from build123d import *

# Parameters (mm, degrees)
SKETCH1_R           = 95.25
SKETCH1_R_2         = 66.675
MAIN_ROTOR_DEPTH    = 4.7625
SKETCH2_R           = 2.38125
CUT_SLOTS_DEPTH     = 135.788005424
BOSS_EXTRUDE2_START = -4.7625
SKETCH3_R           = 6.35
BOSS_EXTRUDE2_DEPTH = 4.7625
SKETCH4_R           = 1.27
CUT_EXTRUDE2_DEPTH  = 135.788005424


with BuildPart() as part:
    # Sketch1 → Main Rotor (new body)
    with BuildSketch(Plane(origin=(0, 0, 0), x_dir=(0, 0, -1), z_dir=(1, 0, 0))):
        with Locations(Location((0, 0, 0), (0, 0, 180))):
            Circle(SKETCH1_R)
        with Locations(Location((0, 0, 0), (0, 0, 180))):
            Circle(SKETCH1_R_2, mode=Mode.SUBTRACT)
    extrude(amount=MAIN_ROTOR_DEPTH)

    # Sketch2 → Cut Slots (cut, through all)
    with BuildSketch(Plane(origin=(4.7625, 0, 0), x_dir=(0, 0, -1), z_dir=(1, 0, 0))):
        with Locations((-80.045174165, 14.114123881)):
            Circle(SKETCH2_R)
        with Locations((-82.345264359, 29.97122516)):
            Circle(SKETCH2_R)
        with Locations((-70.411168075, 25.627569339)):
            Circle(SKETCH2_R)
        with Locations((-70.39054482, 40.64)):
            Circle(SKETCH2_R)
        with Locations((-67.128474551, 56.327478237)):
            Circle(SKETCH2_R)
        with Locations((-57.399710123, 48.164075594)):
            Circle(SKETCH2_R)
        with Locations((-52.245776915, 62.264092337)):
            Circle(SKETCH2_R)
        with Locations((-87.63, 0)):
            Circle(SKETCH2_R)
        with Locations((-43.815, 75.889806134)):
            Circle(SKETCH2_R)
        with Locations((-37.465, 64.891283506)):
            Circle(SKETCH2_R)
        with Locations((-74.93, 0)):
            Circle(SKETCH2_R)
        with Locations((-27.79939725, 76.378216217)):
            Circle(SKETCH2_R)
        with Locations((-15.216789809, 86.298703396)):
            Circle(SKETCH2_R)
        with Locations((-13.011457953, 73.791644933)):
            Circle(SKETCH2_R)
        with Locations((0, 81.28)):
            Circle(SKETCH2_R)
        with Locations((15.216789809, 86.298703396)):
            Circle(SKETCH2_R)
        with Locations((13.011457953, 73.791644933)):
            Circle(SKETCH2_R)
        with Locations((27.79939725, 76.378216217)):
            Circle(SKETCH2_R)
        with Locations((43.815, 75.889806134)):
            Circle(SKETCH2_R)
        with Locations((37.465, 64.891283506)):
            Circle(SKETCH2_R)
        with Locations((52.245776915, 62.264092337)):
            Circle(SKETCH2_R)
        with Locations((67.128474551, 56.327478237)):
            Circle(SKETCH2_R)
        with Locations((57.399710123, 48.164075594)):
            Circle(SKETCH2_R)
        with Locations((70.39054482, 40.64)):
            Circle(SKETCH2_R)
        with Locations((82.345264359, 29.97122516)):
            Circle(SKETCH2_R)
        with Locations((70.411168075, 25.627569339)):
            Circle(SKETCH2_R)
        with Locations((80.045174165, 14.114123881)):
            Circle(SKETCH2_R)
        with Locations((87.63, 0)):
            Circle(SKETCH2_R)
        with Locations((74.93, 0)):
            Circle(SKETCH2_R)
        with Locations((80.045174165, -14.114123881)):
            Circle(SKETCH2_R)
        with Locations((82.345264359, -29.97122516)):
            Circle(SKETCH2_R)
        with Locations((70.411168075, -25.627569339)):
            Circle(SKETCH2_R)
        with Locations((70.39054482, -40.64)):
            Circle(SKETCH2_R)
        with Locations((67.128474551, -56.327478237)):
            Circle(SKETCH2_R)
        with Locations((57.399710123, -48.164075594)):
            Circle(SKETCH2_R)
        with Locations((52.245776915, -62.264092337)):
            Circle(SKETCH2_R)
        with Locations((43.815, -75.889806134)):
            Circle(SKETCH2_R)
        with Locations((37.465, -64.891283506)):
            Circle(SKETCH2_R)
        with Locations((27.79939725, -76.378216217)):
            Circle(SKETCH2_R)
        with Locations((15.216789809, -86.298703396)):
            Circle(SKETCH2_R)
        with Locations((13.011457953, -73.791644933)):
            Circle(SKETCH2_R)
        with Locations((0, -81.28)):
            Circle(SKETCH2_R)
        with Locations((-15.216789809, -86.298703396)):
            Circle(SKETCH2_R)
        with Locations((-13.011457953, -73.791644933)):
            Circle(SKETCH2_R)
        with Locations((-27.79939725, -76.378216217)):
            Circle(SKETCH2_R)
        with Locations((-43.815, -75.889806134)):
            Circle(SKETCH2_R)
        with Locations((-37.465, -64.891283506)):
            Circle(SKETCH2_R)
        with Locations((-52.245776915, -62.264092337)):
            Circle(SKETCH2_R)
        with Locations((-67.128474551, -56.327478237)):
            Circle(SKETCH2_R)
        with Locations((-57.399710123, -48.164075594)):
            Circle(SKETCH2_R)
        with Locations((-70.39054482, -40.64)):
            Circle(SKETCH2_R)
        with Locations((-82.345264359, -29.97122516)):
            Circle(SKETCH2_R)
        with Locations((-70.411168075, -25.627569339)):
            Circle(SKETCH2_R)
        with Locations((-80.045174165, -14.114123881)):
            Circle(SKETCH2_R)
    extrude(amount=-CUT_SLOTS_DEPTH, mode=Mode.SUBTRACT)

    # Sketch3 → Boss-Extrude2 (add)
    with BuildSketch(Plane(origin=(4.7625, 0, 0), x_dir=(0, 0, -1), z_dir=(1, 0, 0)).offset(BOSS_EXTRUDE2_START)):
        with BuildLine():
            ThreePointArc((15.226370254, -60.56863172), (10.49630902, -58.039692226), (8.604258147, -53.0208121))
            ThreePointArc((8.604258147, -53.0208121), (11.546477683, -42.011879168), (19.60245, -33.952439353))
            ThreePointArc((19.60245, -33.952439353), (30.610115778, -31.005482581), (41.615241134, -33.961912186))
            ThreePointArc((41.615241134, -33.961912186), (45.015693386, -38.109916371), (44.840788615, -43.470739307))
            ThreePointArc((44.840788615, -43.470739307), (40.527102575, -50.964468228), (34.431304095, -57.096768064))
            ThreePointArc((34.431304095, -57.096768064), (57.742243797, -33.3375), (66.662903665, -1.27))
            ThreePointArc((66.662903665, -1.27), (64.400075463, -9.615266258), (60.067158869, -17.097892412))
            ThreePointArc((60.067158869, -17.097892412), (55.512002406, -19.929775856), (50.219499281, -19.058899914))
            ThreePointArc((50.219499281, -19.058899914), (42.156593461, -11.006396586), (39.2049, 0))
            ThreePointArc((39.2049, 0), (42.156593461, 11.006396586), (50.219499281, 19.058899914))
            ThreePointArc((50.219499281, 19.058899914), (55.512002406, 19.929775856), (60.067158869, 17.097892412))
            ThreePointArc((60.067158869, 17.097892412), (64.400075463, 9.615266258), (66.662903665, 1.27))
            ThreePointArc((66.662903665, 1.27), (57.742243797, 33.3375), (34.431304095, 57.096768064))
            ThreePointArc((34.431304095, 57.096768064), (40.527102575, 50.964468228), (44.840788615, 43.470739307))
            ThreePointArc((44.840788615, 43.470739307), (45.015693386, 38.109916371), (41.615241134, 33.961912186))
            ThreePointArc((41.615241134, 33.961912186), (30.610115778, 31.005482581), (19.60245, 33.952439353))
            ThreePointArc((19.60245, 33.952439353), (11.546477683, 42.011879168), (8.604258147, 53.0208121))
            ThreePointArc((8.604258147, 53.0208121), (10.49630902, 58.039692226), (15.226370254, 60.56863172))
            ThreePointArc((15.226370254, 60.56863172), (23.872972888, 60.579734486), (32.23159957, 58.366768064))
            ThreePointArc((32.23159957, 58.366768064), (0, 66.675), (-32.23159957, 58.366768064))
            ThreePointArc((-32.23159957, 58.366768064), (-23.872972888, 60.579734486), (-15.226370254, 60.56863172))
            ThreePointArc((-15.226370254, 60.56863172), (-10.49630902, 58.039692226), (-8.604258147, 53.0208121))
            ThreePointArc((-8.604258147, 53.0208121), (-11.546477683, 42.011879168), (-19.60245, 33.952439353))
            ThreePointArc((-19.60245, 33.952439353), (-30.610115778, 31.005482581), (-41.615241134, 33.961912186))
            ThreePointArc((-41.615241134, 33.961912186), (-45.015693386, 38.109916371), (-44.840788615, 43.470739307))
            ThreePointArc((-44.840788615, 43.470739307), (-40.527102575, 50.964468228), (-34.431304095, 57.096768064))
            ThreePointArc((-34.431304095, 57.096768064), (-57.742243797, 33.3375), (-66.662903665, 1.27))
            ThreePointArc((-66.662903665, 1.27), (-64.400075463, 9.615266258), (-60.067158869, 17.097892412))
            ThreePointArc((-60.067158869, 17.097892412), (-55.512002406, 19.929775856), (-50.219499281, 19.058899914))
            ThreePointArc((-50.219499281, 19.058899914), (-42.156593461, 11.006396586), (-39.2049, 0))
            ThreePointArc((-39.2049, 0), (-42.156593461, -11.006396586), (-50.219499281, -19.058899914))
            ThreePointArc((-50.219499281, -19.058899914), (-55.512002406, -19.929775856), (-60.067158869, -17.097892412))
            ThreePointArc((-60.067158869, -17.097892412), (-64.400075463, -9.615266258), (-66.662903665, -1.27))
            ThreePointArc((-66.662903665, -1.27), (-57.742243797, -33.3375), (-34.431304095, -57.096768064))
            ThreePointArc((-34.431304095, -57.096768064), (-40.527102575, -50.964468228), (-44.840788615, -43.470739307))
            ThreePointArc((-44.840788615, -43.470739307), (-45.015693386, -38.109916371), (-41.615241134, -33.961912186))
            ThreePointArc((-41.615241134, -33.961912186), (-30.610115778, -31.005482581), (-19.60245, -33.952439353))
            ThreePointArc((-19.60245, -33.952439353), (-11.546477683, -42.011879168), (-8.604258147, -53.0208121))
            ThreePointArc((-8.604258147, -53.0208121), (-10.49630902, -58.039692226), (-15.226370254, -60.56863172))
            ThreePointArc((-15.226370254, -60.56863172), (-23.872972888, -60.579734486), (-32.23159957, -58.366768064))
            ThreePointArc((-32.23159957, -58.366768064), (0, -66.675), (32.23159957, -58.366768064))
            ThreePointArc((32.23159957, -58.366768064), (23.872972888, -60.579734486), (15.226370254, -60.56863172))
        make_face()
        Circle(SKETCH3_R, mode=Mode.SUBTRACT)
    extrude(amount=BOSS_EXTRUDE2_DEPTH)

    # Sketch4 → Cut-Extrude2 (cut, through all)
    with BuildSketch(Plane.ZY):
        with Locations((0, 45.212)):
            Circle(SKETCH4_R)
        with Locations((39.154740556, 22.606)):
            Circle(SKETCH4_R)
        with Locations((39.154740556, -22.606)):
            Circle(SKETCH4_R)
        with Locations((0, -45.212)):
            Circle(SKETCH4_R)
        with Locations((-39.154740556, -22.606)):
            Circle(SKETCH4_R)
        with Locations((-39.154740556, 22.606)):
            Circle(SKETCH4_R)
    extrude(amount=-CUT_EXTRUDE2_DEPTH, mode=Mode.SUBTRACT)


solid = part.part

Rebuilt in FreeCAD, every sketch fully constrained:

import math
import FreeCAD as App
import Part
import Sketcher
from FreeCAD import Vector
Q = App.Units.Quantity

doc = App.newDocument("Part")
body = doc.addObject("PartDesign::Body", "Body")

sketch1 = body.newObject("Sketcher::SketchObject", "Sketch")
sketch1.AttachmentSupport = (doc.getObject("YZ_Plane"), [""])
sketch1.MapMode = "FlatFace"
sketch1.addGeometry([
    Part.Circle(Vector(0, 0, 0), Vector(0, 0, 1), 95),
    Part.Circle(Vector(0, 0, 0), Vector(0, 0, 1), 67),
], False)
sketch1.addConstraint([
    Sketcher.Constraint("Coincident", 0, 3, -1, 1),
    Sketcher.Constraint("Coincident", 1, 3, -1, 1),
    Sketcher.Constraint("Diameter", 0, Q("7.5 in")),
    Sketcher.Constraint("Diameter", 1, Q("5.25 in")),
])
pad1 = body.newObject("PartDesign::Pad", "Pad")
pad1.Profile = sketch1
pad1.Length = Q("0.1875 in")

sketch2 = body.newObject("Sketcher::SketchObject", "Sketch001")
sketch2.AttachmentSupport = (doc.getObject("YZ_Plane"), [""])
sketch2.MapMode = "FlatFace"
sketch2.AttachmentOffset = App.Placement(Vector(0, 0, 0.1875 * 25.4), App.Rotation())
sketch2.addGeometry([
    Part.Circle(Vector(14.1, 80, 0), Vector(0, 0, 1), 2.4),
    Part.Circle(Vector(30, 82.3, 0), Vector(0, 0, 1), 2.4),
    Part.Circle(Vector(25.6, 70.4, 0), Vector(0, 0, 1), 2.4),
    Part.Circle(Vector(40.6, 70.4, 0), Vector(0, 0, 1), 2.4),
    Part.Circle(Vector(56.3, 67.1, 0), Vector(0, 0, 1), 2.4),
    Part.Circle(Vector(48.2, 57.4, 0), Vector(0, 0, 1), 2.4),
    Part.Circle(Vector(62.3, 52.2, 0), Vector(0, 0, 1), 2.4),
    Part.Circle(Vector(0, 87.6, 0), Vector(0, 0, 1), 2.4),
    Part.Circle(Vector(75.9, 43.8, 0), Vector(0, 0, 1), 2.4),
    Part.Circle(Vector(64.9, 37.5, 0), Vector(0, 0, 1), 2.4),
    Part.Circle(Vector(0, 74.9, 0), Vector(0, 0, 1), 2.4),
    Part.Circle(Vector(76.4, 27.8, 0), Vector(0, 0, 1), 2.4),
    Part.Circle(Vector(86.3, 15.2, 0), Vector(0, 0, 1), 2.4),
    Part.Circle(Vector(73.8, 13, 0), Vector(0, 0, 1), 2.4),
    Part.Circle(Vector(81.3, 0, 0), Vector(0, 0, 1), 2.4),
    Part.Circle(Vector(86.3, -15.2, 0), Vector(0, 0, 1), 2.4),
    Part.Circle(Vector(73.8, -13, 0), Vector(0, 0, 1), 2.4),
    Part.Circle(Vector(76.4, -27.8, 0), Vector(0, 0, 1), 2.4),
    Part.Circle(Vector(75.9, -43.8, 0), Vector(0, 0, 1), 2.4),
    Part.Circle(Vector(64.9, -37.5, 0), Vector(0, 0, 1), 2.4),
    Part.Circle(Vector(62.3, -52.2, 0), Vector(0, 0, 1), 2.4),
    Part.Circle(Vector(56.3, -67.1, 0), Vector(0, 0, 1), 2.4),
    Part.Circle(Vector(48.2, -57.4, 0), Vector(0, 0, 1), 2.4),
    Part.Circle(Vector(40.6, -70.4, 0), Vector(0, 0, 1), 2.4),
    Part.Circle(Vector(30, -82.3, 0), Vector(0, 0, 1), 2.4),
    Part.Circle(Vector(25.6, -70.4, 0), Vector(0, 0, 1), 2.4),
    Part.Circle(Vector(14.1, -80, 0), Vector(0, 0, 1), 2.4),
    Part.Circle(Vector(0, -87.6, 0), Vector(0, 0, 1), 2.4),
    Part.Circle(Vector(0, -74.9, 0), Vector(0, 0, 1), 2.4),
    Part.Circle(Vector(-14.1, -80, 0), Vector(0, 0, 1), 2.4),
    Part.Circle(Vector(-30, -82.3, 0), Vector(0, 0, 1), 2.4),
    Part.Circle(Vector(-25.6, -70.4, 0), Vector(0, 0, 1), 2.4),
    Part.Circle(Vector(-40.6, -70.4, 0), Vector(0, 0, 1), 2.4),
    Part.Circle(Vector(-56.3, -67.1, 0), Vector(0, 0, 1), 2.4),
    Part.Circle(Vector(-48.2, -57.4, 0), Vector(0, 0, 1), 2.4),
    Part.Circle(Vector(-62.3, -52.2, 0), Vector(0, 0, 1), 2.4),
    Part.Circle(Vector(-75.9, -43.8, 0), Vector(0, 0, 1), 2.4),
    Part.Circle(Vector(-64.9, -37.5, 0), Vector(0, 0, 1), 2.4),
    Part.Circle(Vector(-76.4, -27.8, 0), Vector(0, 0, 1), 2.4),
    Part.Circle(Vector(-86.3, -15.2, 0), Vector(0, 0, 1), 2.4),
    Part.Circle(Vector(-73.8, -13, 0), Vector(0, 0, 1), 2.4),
    Part.Circle(Vector(-81.3, 0, 0), Vector(0, 0, 1), 2.4),
    Part.Circle(Vector(-86.3, 15.2, 0), Vector(0, 0, 1), 2.4),
    Part.Circle(Vector(-73.8, 13, 0), Vector(0, 0, 1), 2.4),
    Part.Circle(Vector(-76.4, 27.8, 0), Vector(0, 0, 1), 2.4),
    Part.Circle(Vector(-75.9, 43.8, 0), Vector(0, 0, 1), 2.4),
    Part.Circle(Vector(-64.9, 37.5, 0), Vector(0, 0, 1), 2.4),
    Part.Circle(Vector(-62.3, 52.2, 0), Vector(0, 0, 1), 2.4),
    Part.Circle(Vector(-56.3, 67.1, 0), Vector(0, 0, 1), 2.4),
    Part.Circle(Vector(-48.2, 57.4, 0), Vector(0, 0, 1), 2.4),
    Part.Circle(Vector(-40.6, 70.4, 0), Vector(0, 0, 1), 2.4),
    Part.Circle(Vector(-30, 82.3, 0), Vector(0, 0, 1), 2.4),
    Part.Circle(Vector(-25.6, 70.4, 0), Vector(0, 0, 1), 2.4),
    Part.Circle(Vector(-14.1, 80, 0), Vector(0, 0, 1), 2.4),
], False)
sketch2.addConstraint([
    Sketcher.Constraint("Equal", 0, 1),
    Sketcher.Constraint("Equal", 1, 2),
    Sketcher.Constraint("Equal", 2, 3),
    Sketcher.Constraint("Equal", 3, 4),
    Sketcher.Constraint("Equal", 4, 5),
    Sketcher.Constraint("Equal", 5, 6),
    Sketcher.Constraint("Equal", 6, 7),
    Sketcher.Constraint("Equal", 7, 8),
    Sketcher.Constraint("Equal", 8, 9),
    Sketcher.Constraint("Equal", 9, 10),
    Sketcher.Constraint("Equal", 10, 11),
    Sketcher.Constraint("Equal", 11, 12),
    Sketcher.Constraint("Equal", 12, 13),
    Sketcher.Constraint("Equal", 13, 14),
    Sketcher.Constraint("Equal", 14, 15),
    Sketcher.Constraint("Equal", 15, 16),
    Sketcher.Constraint("Equal", 16, 17),
    Sketcher.Constraint("Equal", 17, 18),
    Sketcher.Constraint("Equal", 18, 19),
    Sketcher.Constraint("Equal", 19, 20),
    Sketcher.Constraint("Equal", 20, 21),
    Sketcher.Constraint("Equal", 21, 22),
    Sketcher.Constraint("Equal", 22, 23),
    Sketcher.Constraint("Equal", 23, 24),
    Sketcher.Constraint("Equal", 24, 25),
    Sketcher.Constraint("Equal", 25, 26),
    Sketcher.Constraint("Equal", 26, 27),
    Sketcher.Constraint("Equal", 27, 28),
    Sketcher.Constraint("Equal", 28, 29),
    Sketcher.Constraint("Equal", 29, 30),
    Sketcher.Constraint("Equal", 30, 31),
    Sketcher.Constraint("Equal", 31, 32),
    Sketcher.Constraint("Equal", 32, 33),
    Sketcher.Constraint("Equal", 33, 34),
    Sketcher.Constraint("Equal", 34, 35),
    Sketcher.Constraint("Equal", 35, 36),
    Sketcher.Constraint("Equal", 36, 37),
    Sketcher.Constraint("Equal", 37, 38),
    Sketcher.Constraint("Equal", 38, 39),
    Sketcher.Constraint("Equal", 39, 40),
    Sketcher.Constraint("Equal", 40, 41),
    Sketcher.Constraint("Equal", 41, 42),
    Sketcher.Constraint("Equal", 42, 43),
    Sketcher.Constraint("Equal", 43, 44),
    Sketcher.Constraint("Equal", 44, 45),
    Sketcher.Constraint("Equal", 45, 46),
    Sketcher.Constraint("Equal", 46, 47),
    Sketcher.Constraint("Equal", 47, 48),
    Sketcher.Constraint("Equal", 48, 49),
    Sketcher.Constraint("Equal", 49, 50),
    Sketcher.Constraint("Equal", 50, 51),
    Sketcher.Constraint("Equal", 51, 52),
    Sketcher.Constraint("Equal", 52, 53),
    Sketcher.Constraint("Symmetric", 7, 3, 27, 3, -1, 1),
    Sketcher.Constraint("Symmetric", 10, 3, 28, 3, -1, 1),
    Sketcher.Constraint("Symmetric", 0, 3, 29, 3, -1, 1),
    Sketcher.Constraint("Symmetric", 1, 3, 30, 3, -1, 1),
    Sketcher.Constraint("Symmetric", 2, 3, 31, 3, -1, 1),
    Sketcher.Constraint("Symmetric", 3, 3, 32, 3, -1, 1),
    Sketcher.Constraint("Symmetric", 4, 3, 33, 3, -1, 1),
    Sketcher.Constraint("Symmetric", 5, 3, 34, 3, -1, 1),
    Sketcher.Constraint("Symmetric", 6, 3, 35, 3, -1, 1),
    Sketcher.Constraint("Symmetric", 8, 3, 36, 3, -1, 1),
    Sketcher.Constraint("Symmetric", 9, 3, 37, 3, -1, 1),
    Sketcher.Constraint("Symmetric", 11, 3, 38, 3, -1, 1),
    Sketcher.Constraint("Symmetric", 12, 3, 39, 3, -1, 1),
    Sketcher.Constraint("Symmetric", 13, 3, 40, 3, -1, 1),
    Sketcher.Constraint("Symmetric", 14, 3, 41, 3, -1, 1),
    Sketcher.Constraint("Symmetric", 15, 3, 42, 3, -1, 1),
    Sketcher.Constraint("Symmetric", 16, 3, 43, 3, -1, 1),
    Sketcher.Constraint("Symmetric", 17, 3, 44, 3, -1, 1),
    Sketcher.Constraint("Symmetric", 18, 3, 45, 3, -1, 1),
    Sketcher.Constraint("Symmetric", 19, 3, 46, 3, -1, 1),
    Sketcher.Constraint("Symmetric", 20, 3, 47, 3, -1, 1),
    Sketcher.Constraint("Symmetric", 21, 3, 48, 3, -1, 1),
    Sketcher.Constraint("Symmetric", 22, 3, 49, 3, -1, 1),
    Sketcher.Constraint("Symmetric", 23, 3, 50, 3, -1, 1),
    Sketcher.Constraint("Symmetric", 24, 3, 51, 3, -1, 1),
    Sketcher.Constraint("Symmetric", 25, 3, 52, 3, -1, 1),
    Sketcher.Constraint("Symmetric", 26, 3, 53, 3, -1, 1),
    Sketcher.Constraint("Symmetric", 26, 3, 29, 3, -2),
    Sketcher.Constraint("Symmetric", 24, 3, 30, 3, -2),
    Sketcher.Constraint("Symmetric", 25, 3, 31, 3, -2),
    Sketcher.Constraint("Symmetric", 23, 3, 32, 3, -2),
    Sketcher.Constraint("Symmetric", 21, 3, 33, 3, -2),
    Sketcher.Constraint("Symmetric", 22, 3, 34, 3, -2),
    Sketcher.Constraint("Symmetric", 20, 3, 35, 3, -2),
    Sketcher.Constraint("Symmetric", 18, 3, 36, 3, -2),
    Sketcher.Constraint("Symmetric", 19, 3, 37, 3, -2),
    Sketcher.Constraint("Symmetric", 17, 3, 38, 3, -2),
    Sketcher.Constraint("Symmetric", 15, 3, 39, 3, -2),
    Sketcher.Constraint("Symmetric", 16, 3, 40, 3, -2),
    Sketcher.Constraint("PointOnObject", 7, 3, -2),
    Sketcher.Constraint("PointOnObject", 10, 3, -2),
    Sketcher.Constraint("PointOnObject", 14, 3, -1),
    Sketcher.Constraint("Diameter", 0, Q("0.1875 in")),
    Sketcher.Constraint("DistanceX", -1, 1, 3, 3, Q("1.6 in")),
    Sketcher.Constraint("DistanceX", -1, 1, 14, 3, Q("3.2 in")),
    Sketcher.Constraint("DistanceY", 10, 3, 7, 3, Q("0.5 in")),
    Sketcher.Constraint("DistanceY", -1, 1, 7, 3, Q("3.45 in")),
    Sketcher.Constraint("DistanceY", 9, 3, 8, 3, Q("0.25 in")),
    Sketcher.Constraint("DistanceY", -1, 1, 8, 3, Q("1.725 in")),
    Sketcher.Constraint("DistanceX", 0, 3, 1, 3, Q("15.857101 mm")),
    Sketcher.Constraint("DistanceY", 4, 3, 0, 3, Q("12.9167 mm")),
    Sketcher.Constraint("DistanceX", -1, 1, 2, 3, Q("25.627569 mm")),
    Sketcher.Constraint("DistanceY", -1, 1, 2, 3, Q("70.411168 mm")),
    Sketcher.Constraint("DistanceX", -1, 1, 4, 3, Q("56.327478 mm")),
    Sketcher.Constraint("DistanceY", -1, 1, 5, 3, Q("57.39971 mm")),
    Sketcher.Constraint("DistanceY", -1, 1, 12, 3, Q("15.21679 mm")),
    Sketcher.Constraint("DistanceY", 0, 3, 1, 3, Q("2.30009 mm")),
    Sketcher.Constraint("DistanceY", 3, 3, 1, 3, Q("11.95472 mm")),
    Sketcher.Constraint("DistanceX", 1, 3, 5, 3, Q("18.19285 mm")),
    Sketcher.Constraint("DistanceY", 6, 3, 2, 3, Q("18.165391 mm")),
    Sketcher.Constraint("DistanceX", 5, 3, 8, 3, Q("27.725731 mm")),
    Sketcher.Constraint("DistanceX", 6, 3, 9, 3, Q("2.627191 mm")),
    Sketcher.Constraint("DistanceX", 8, 3, 11, 3, Q("0.48841 mm")),
    Sketcher.Constraint("DistanceY", 11, 3, 6, 3, Q("24.44638 mm")),
    Sketcher.Constraint("DistanceX", 9, 3, 12, 3, Q("21.40742 mm")),
    Sketcher.Constraint("DistanceX", 13, 3, 12, 3, Q("12.507058 mm")),
    Sketcher.Constraint("DistanceY", 13, 3, 12, 3, Q("2.205332 mm")),
    Sketcher.Constraint("DistanceX", 13, 3, 11, 3, Q("2.586571 mm")),
    Sketcher.Constraint("DistanceX", 29, 3, 24, 3, Q("44.085349 mm")),
    Sketcher.Constraint("DistanceY", -1, 1, 0, 3, Q("80.045174 mm")),
])
pocket1 = body.newObject("PartDesign::Pocket", "Pocket")
pocket1.Profile = sketch2
pocket1.Type = "ThroughAll"

sketch3 = body.newObject("Sketcher::SketchObject", "Sketch002")
sketch3.AttachmentSupport = (doc.getObject("YZ_Plane"), [""])
sketch3.MapMode = "FlatFace"
sketch3.addGeometry([
    Part.ArcOfCircle(Part.Circle(Vector(-53, -16, 0), Vector(0, 0, 1), 8), math.radians(90), math.radians(172)),
    Part.ArcOfCircle(Part.Circle(Vector(-53, -31, 0), Vector(0, 0, 1), 22), math.radians(30), math.radians(90)),
    Part.ArcOfCircle(Part.Circle(Vector(-53, -31, 0), Vector(0, 0, 1), 22), math.radians(-30), math.radians(30)),
    Part.ArcOfCircle(Part.Circle(Vector(-41, -38, 0), Vector(0, 0, 1), 8), math.radians(-112), math.radians(-30)),
    Part.ArcOfCircle(Part.Circle(Vector(-31, -14, 0), Vector(0, 0, 1), 33), math.radians(-142), math.radians(-112)),
    Part.ArcOfCircle(Part.Circle(Vector(0, 0, 0), Vector(0, 0, 1), 67), math.radians(-149), math.radians(-91)),
    Part.ArcOfCircle(Part.Circle(Vector(3, -34, 0), Vector(0, 0, 1), 33), math.radians(-128), math.radians(-98)),
    Part.ArcOfCircle(Part.Circle(Vector(-12, -54, 0), Vector(0, 0, 1), 8), math.radians(150), math.radians(232)),
    Part.ArcOfCircle(Part.Circle(Vector(0, -61, 0), Vector(0, 0, 1), 22), math.radians(90), math.radians(150)),
    Part.ArcOfCircle(Part.Circle(Vector(0, -61, 0), Vector(0, 0, 1), 22), math.radians(30), math.radians(90)),
    Part.ArcOfCircle(Part.Circle(Vector(12, -54, 0), Vector(0, 0, 1), 8), math.radians(-52), math.radians(30)),
    Part.ArcOfCircle(Part.Circle(Vector(-3, -34, 0), Vector(0, 0, 1), 33), math.radians(-82), math.radians(-52)),
    Part.ArcOfCircle(Part.Circle(Vector(0, 0, 0), Vector(0, 0, 1), 67), math.radians(-89), math.radians(-31)),
    Part.ArcOfCircle(Part.Circle(Vector(31, -14, 0), Vector(0, 0, 1), 33), math.radians(-68), math.radians(-38)),
    Part.ArcOfCircle(Part.Circle(Vector(41, -38, 0), Vector(0, 0, 1), 8), math.radians(-150), math.radians(-68)),
    Part.ArcOfCircle(Part.Circle(Vector(53, -31, 0), Vector(0, 0, 1), 22), math.radians(150), math.radians(210)),
    Part.ArcOfCircle(Part.Circle(Vector(53, -31, 0), Vector(0, 0, 1), 22), math.radians(90), math.radians(150)),
    Part.ArcOfCircle(Part.Circle(Vector(53, -16, 0), Vector(0, 0, 1), 8), math.radians(8), math.radians(90)),
    Part.ArcOfCircle(Part.Circle(Vector(28, -20, 0), Vector(0, 0, 1), 33), math.radians(-22), math.radians(8)),
    Part.ArcOfCircle(Part.Circle(Vector(0, 0, 0), Vector(0, 0, 1), 67), math.radians(-29), math.radians(29)),
    Part.ArcOfCircle(Part.Circle(Vector(28, 20, 0), Vector(0, 0, 1), 33), math.radians(-8), math.radians(22)),
    Part.ArcOfCircle(Part.Circle(Vector(53, 16, 0), Vector(0, 0, 1), 8), math.radians(-90), math.radians(-8)),
    Part.ArcOfCircle(Part.Circle(Vector(53, 31, 0), Vector(0, 0, 1), 22), math.radians(-150), math.radians(-90)),
    Part.ArcOfCircle(Part.Circle(Vector(53, 31, 0), Vector(0, 0, 1), 22), math.radians(150), math.radians(210)),
    Part.ArcOfCircle(Part.Circle(Vector(41, 38, 0), Vector(0, 0, 1), 8), math.radians(68), math.radians(150)),
    Part.ArcOfCircle(Part.Circle(Vector(31, 14, 0), Vector(0, 0, 1), 33), math.radians(38), math.radians(68)),
    Part.ArcOfCircle(Part.Circle(Vector(0, 0, 0), Vector(0, 0, 1), 67), math.radians(31), math.radians(89)),
    Part.ArcOfCircle(Part.Circle(Vector(-3, 34, 0), Vector(0, 0, 1), 33), math.radians(52), math.radians(82)),
    Part.ArcOfCircle(Part.Circle(Vector(12, 54, 0), Vector(0, 0, 1), 8), math.radians(-30), math.radians(52)),
    Part.ArcOfCircle(Part.Circle(Vector(0, 61, 0), Vector(0, 0, 1), 22), math.radians(-90), math.radians(-30)),
    Part.ArcOfCircle(Part.Circle(Vector(0, 61, 0), Vector(0, 0, 1), 22), math.radians(-150), math.radians(-90)),
    Part.ArcOfCircle(Part.Circle(Vector(-12, 54, 0), Vector(0, 0, 1), 8), math.radians(128), math.radians(210)),
    Part.ArcOfCircle(Part.Circle(Vector(3, 34, 0), Vector(0, 0, 1), 33), math.radians(98), math.radians(128)),
    Part.ArcOfCircle(Part.Circle(Vector(0, 0, 0), Vector(0, 0, 1), 67), math.radians(91), math.radians(149)),
    Part.ArcOfCircle(Part.Circle(Vector(-31, 14, 0), Vector(0, 0, 1), 33), math.radians(112), math.radians(142)),
    Part.ArcOfCircle(Part.Circle(Vector(-41, 38, 0), Vector(0, 0, 1), 8), math.radians(30), math.radians(112)),
    Part.ArcOfCircle(Part.Circle(Vector(-53, 31, 0), Vector(0, 0, 1), 22), math.radians(-30), math.radians(30)),
    Part.ArcOfCircle(Part.Circle(Vector(-53, 31, 0), Vector(0, 0, 1), 22), math.radians(-90), math.radians(-30)),
    Part.ArcOfCircle(Part.Circle(Vector(-53, 16, 0), Vector(0, 0, 1), 8), math.radians(-172), math.radians(-90)),
    Part.ArcOfCircle(Part.Circle(Vector(-28, 20, 0), Vector(0, 0, 1), 33), math.radians(158), math.radians(188)),
    Part.ArcOfCircle(Part.Circle(Vector(0, 0, 0), Vector(0, 0, 1), 67), math.radians(151), math.radians(209)),
    Part.ArcOfCircle(Part.Circle(Vector(-28, -20, 0), Vector(0, 0, 1), 33), math.radians(172), math.radians(202)),
    Part.Circle(Vector(0, 0, 0), Vector(0, 0, 1), 6),
], False)
sketch3.addConstraint([
    Sketcher.Constraint("Tangent", 0, 1, 1, 2),
    Sketcher.Constraint("Tangent", 1, 1, 2, 2),
    Sketcher.Constraint("Tangent", 2, 1, 3, 2),
    Sketcher.Constraint("Tangent", 3, 1, 4, 2),
    Sketcher.Constraint("Coincident", 4, 1, 5, 1),
    Sketcher.Constraint("Coincident", 5, 2, 6, 2),
    Sketcher.Constraint("Tangent", 6, 1, 7, 2),
    Sketcher.Constraint("Tangent", 7, 1, 8, 2),
    Sketcher.Constraint("Tangent", 8, 1, 9, 2),
    Sketcher.Constraint("Tangent", 9, 1, 10, 2),
    Sketcher.Constraint("Tangent", 10, 1, 11, 2),
    Sketcher.Constraint("Coincident", 11, 1, 12, 1),
    Sketcher.Constraint("Coincident", 12, 2, 13, 2),
    Sketcher.Constraint("Tangent", 13, 1, 14, 2),
    Sketcher.Constraint("Tangent", 14, 1, 15, 2),
    Sketcher.Constraint("Tangent", 15, 1, 16, 2),
    Sketcher.Constraint("Tangent", 16, 1, 17, 2),
    Sketcher.Constraint("Tangent", 17, 1, 18, 2),
    Sketcher.Constraint("Coincident", 18, 1, 19, 1),
    Sketcher.Constraint("Coincident", 19, 2, 20, 2),
    Sketcher.Constraint("Tangent", 20, 1, 21, 2),
    Sketcher.Constraint("Tangent", 21, 1, 22, 2),
    Sketcher.Constraint("Tangent", 22, 1, 23, 2),
    Sketcher.Constraint("Tangent", 23, 1, 24, 2),
    Sketcher.Constraint("Tangent", 24, 1, 25, 2),
    Sketcher.Constraint("Coincident", 25, 1, 26, 1),
    Sketcher.Constraint("Coincident", 26, 2, 27, 2),
    Sketcher.Constraint("Tangent", 27, 1, 28, 2),
    Sketcher.Constraint("Tangent", 28, 1, 29, 2),
    Sketcher.Constraint("Tangent", 29, 1, 30, 2),
    Sketcher.Constraint("Tangent", 30, 1, 31, 2),
    Sketcher.Constraint("Tangent", 31, 1, 32, 2),
    Sketcher.Constraint("Coincident", 32, 1, 33, 1),
    Sketcher.Constraint("Coincident", 33, 2, 34, 2),
    Sketcher.Constraint("Tangent", 34, 1, 35, 2),
    Sketcher.Constraint("Tangent", 35, 1, 36, 2),
    Sketcher.Constraint("Tangent", 36, 1, 37, 2),
    Sketcher.Constraint("Tangent", 37, 1, 38, 2),
    Sketcher.Constraint("Tangent", 38, 1, 39, 2),
    Sketcher.Constraint("Coincident", 39, 1, 40, 1),
    Sketcher.Constraint("Coincident", 40, 2, 41, 2),
    Sketcher.Constraint("Tangent", 41, 1, 0, 2),
    Sketcher.Constraint("Coincident", 5, 3, -1, 1),
    Sketcher.Constraint("Coincident", 12, 3, -1, 1),
    Sketcher.Constraint("Coincident", 19, 3, -1, 1),
    Sketcher.Constraint("Coincident", 26, 3, -1, 1),
    Sketcher.Constraint("Coincident", 33, 3, -1, 1),
    Sketcher.Constraint("Coincident", 40, 3, -1, 1),
    Sketcher.Constraint("Coincident", 42, 3, -1, 1),
    Sketcher.Constraint("Equal", 1, 2),
    Sketcher.Constraint("Equal", 0, 3),
    Sketcher.Constraint("Equal", 4, 6),
    Sketcher.Constraint("Equal", 3, 7),
    Sketcher.Constraint("Equal", 2, 8),
    Sketcher.Constraint("Equal", 8, 9),
    Sketcher.Constraint("Equal", 7, 10),
    Sketcher.Constraint("Equal", 6, 11),
    Sketcher.Constraint("Equal", 5, 12),
    Sketcher.Constraint("Equal", 11, 13),
    Sketcher.Constraint("Equal", 10, 14),
    Sketcher.Constraint("Equal", 9, 15),
    Sketcher.Constraint("Equal", 15, 16),
    Sketcher.Constraint("Equal", 14, 17),
    Sketcher.Constraint("Equal", 13, 18),
    Sketcher.Constraint("Equal", 12, 19),
    Sketcher.Constraint("Equal", 18, 20),
    Sketcher.Constraint("Equal", 17, 21),
    Sketcher.Constraint("Equal", 16, 22),
    Sketcher.Constraint("Equal", 22, 23),
    Sketcher.Constraint("Equal", 21, 24),
    Sketcher.Constraint("Equal", 20, 25),
    Sketcher.Constraint("Equal", 19, 26),
    Sketcher.Constraint("Equal", 25, 27),
    Sketcher.Constraint("Equal", 24, 28),
    Sketcher.Constraint("Equal", 23, 29),
    Sketcher.Constraint("Equal", 29, 30),
    Sketcher.Constraint("Equal", 28, 31),
    Sketcher.Constraint("Equal", 27, 32),
    Sketcher.Constraint("Equal", 26, 33),
    Sketcher.Constraint("Equal", 32, 34),
    Sketcher.Constraint("Equal", 31, 35),
    Sketcher.Constraint("Equal", 30, 36),
    Sketcher.Constraint("Equal", 36, 37),
    Sketcher.Constraint("Equal", 35, 38),
    Sketcher.Constraint("Equal", 34, 39),
    Sketcher.Constraint("Equal", 33, 40),
    Sketcher.Constraint("Equal", 39, 41),
    Sketcher.Constraint("Symmetric", 0, 3, 21, 3, -1, 1),
    Sketcher.Constraint("Symmetric", 3, 3, 24, 3, -1, 1),
    Sketcher.Constraint("Symmetric", 6, 3, 27, 3, -1, 1),
    Sketcher.Constraint("Symmetric", 8, 3, 29, 3, -1, 1),
    Sketcher.Constraint("Symmetric", 11, 3, 32, 3, -1, 1),
    Sketcher.Constraint("Symmetric", 13, 3, 34, 3, -1, 1),
    Sketcher.Constraint("Symmetric", 15, 3, 36, 3, -1, 1),
    Sketcher.Constraint("Symmetric", 18, 3, 39, 3, -1, 1),
    Sketcher.Constraint("Symmetric", 7, 3, 10, 3, -2),
    Sketcher.Constraint("Symmetric", 4, 3, 13, 3, -2),
    Sketcher.Constraint("Symmetric", 1, 3, 15, 3, -2),
    Sketcher.Constraint("Symmetric", 20, 3, 39, 3, -2),
    Sketcher.Constraint("PointOnObject", 8, 1, -2),
    Sketcher.Constraint("PointOnObject", 29, 1, -2),
    Sketcher.Constraint("Horizontal", 6, 3, 11, 3),
    Sketcher.Constraint("Horizontal", 25, 3, 34, 3),
    Sketcher.Constraint("Horizontal", 18, 3, 41, 3),
    Sketcher.Constraint("Horizontal", 1, 1, 15, 1),
    Sketcher.Constraint("Horizontal", 22, 1, 36, 1),
    Sketcher.Constraint("Vertical", 15, 1, 22, 1),
    Sketcher.Constraint("Diameter", 42, Q("0.5 in")),
    Sketcher.Constraint("Radius", 0, Q("0.3 in")),
    Sketcher.Constraint("Radius", 1, Q("0.866 in")),
    Sketcher.Constraint("Radius", 4, Q("1.3125 in")),
    Sketcher.Constraint("Radius", 5, Q("2.625 in")),
    Sketcher.Constraint("DistanceX", 5, 2, -1, 1, Q("0.05 in")),
    Sketcher.Constraint("DistanceY", 8, 3, -1, 1, Q("2.4095 in")),
    Sketcher.Constraint("DistanceX", 7, 1, -1, 1, Q("19.0589 mm")),
    Sketcher.Constraint("DistanceY", 18, 1, -1, 1, Q("32.2316 mm")),
    Sketcher.Constraint("DistanceX", 1, 3, -1, 1, Q("53.001881 mm")),
    Sketcher.Constraint("DistanceY", 1, 3, -1, 1, Q("30.60065 mm")),
    Sketcher.Constraint("DistanceX", -1, 1, 18, 3, Q("27.518228 mm")),
    Sketcher.Constraint("DistanceX", 1, 1, -1, 1, Q("33.952439 mm")),
    Sketcher.Constraint("DistanceY", 2, 1, -1, 1, Q("41.615241 mm")),
    Sketcher.Constraint("DistanceX", 3, 1, -1, 1, Q("43.470739 mm")),
])
pad2 = body.newObject("PartDesign::Pad", "Pad001")
pad2.Profile = sketch3
pad2.Length = Q("0.1875 in")

sketch4 = body.newObject("Sketcher::SketchObject", "Sketch003")
sketch4.AttachmentSupport = (doc.getObject("YZ_Plane"), [""])
sketch4.MapMode = "FlatFace"
sketch4.addGeometry([
    Part.Circle(Vector(45.2, 0, 0), Vector(0, 0, 1), 1.3),
    Part.Circle(Vector(22.6, 39.2, 0), Vector(0, 0, 1), 1.3),
    Part.Circle(Vector(-22.6, 39.2, 0), Vector(0, 0, 1), 1.3),
    Part.Circle(Vector(-45.2, 0, 0), Vector(0, 0, 1), 1.3),
    Part.Circle(Vector(-22.6, -39.2, 0), Vector(0, 0, 1), 1.3),
    Part.Circle(Vector(22.6, -39.2, 0), Vector(0, 0, 1), 1.3),
], False)
sketch4.addConstraint([
    Sketcher.Constraint("Equal", 0, 1),
    Sketcher.Constraint("Equal", 1, 2),
    Sketcher.Constraint("Equal", 2, 3),
    Sketcher.Constraint("Equal", 3, 4),
    Sketcher.Constraint("Equal", 4, 5),
    Sketcher.Constraint("Symmetric", 0, 3, 3, 3, -1, 1),
    Sketcher.Constraint("Symmetric", 1, 3, 4, 3, -1, 1),
    Sketcher.Constraint("Symmetric", 2, 3, 5, 3, -1, 1),
    Sketcher.Constraint("Symmetric", 1, 3, 2, 3, -2),
    Sketcher.Constraint("PointOnObject", 0, 3, -1),
    Sketcher.Constraint("Diameter", 0, Q("0.1 in")),
    Sketcher.Constraint("DistanceX", -1, 1, 0, 3, Q("1.78 in")),
    Sketcher.Constraint("DistanceX", -1, 1, 1, 3, Q("0.89 in")),
    Sketcher.Constraint("DistanceY", -1, 1, 1, 3, Q("39.154741 mm")),
])
pocket2 = body.newObject("PartDesign::Pocket", "Pocket001")
pocket2.Profile = sketch4
pocket2.Type = "ThroughAll"
pocket2.Reversed = True

doc.recompute()
